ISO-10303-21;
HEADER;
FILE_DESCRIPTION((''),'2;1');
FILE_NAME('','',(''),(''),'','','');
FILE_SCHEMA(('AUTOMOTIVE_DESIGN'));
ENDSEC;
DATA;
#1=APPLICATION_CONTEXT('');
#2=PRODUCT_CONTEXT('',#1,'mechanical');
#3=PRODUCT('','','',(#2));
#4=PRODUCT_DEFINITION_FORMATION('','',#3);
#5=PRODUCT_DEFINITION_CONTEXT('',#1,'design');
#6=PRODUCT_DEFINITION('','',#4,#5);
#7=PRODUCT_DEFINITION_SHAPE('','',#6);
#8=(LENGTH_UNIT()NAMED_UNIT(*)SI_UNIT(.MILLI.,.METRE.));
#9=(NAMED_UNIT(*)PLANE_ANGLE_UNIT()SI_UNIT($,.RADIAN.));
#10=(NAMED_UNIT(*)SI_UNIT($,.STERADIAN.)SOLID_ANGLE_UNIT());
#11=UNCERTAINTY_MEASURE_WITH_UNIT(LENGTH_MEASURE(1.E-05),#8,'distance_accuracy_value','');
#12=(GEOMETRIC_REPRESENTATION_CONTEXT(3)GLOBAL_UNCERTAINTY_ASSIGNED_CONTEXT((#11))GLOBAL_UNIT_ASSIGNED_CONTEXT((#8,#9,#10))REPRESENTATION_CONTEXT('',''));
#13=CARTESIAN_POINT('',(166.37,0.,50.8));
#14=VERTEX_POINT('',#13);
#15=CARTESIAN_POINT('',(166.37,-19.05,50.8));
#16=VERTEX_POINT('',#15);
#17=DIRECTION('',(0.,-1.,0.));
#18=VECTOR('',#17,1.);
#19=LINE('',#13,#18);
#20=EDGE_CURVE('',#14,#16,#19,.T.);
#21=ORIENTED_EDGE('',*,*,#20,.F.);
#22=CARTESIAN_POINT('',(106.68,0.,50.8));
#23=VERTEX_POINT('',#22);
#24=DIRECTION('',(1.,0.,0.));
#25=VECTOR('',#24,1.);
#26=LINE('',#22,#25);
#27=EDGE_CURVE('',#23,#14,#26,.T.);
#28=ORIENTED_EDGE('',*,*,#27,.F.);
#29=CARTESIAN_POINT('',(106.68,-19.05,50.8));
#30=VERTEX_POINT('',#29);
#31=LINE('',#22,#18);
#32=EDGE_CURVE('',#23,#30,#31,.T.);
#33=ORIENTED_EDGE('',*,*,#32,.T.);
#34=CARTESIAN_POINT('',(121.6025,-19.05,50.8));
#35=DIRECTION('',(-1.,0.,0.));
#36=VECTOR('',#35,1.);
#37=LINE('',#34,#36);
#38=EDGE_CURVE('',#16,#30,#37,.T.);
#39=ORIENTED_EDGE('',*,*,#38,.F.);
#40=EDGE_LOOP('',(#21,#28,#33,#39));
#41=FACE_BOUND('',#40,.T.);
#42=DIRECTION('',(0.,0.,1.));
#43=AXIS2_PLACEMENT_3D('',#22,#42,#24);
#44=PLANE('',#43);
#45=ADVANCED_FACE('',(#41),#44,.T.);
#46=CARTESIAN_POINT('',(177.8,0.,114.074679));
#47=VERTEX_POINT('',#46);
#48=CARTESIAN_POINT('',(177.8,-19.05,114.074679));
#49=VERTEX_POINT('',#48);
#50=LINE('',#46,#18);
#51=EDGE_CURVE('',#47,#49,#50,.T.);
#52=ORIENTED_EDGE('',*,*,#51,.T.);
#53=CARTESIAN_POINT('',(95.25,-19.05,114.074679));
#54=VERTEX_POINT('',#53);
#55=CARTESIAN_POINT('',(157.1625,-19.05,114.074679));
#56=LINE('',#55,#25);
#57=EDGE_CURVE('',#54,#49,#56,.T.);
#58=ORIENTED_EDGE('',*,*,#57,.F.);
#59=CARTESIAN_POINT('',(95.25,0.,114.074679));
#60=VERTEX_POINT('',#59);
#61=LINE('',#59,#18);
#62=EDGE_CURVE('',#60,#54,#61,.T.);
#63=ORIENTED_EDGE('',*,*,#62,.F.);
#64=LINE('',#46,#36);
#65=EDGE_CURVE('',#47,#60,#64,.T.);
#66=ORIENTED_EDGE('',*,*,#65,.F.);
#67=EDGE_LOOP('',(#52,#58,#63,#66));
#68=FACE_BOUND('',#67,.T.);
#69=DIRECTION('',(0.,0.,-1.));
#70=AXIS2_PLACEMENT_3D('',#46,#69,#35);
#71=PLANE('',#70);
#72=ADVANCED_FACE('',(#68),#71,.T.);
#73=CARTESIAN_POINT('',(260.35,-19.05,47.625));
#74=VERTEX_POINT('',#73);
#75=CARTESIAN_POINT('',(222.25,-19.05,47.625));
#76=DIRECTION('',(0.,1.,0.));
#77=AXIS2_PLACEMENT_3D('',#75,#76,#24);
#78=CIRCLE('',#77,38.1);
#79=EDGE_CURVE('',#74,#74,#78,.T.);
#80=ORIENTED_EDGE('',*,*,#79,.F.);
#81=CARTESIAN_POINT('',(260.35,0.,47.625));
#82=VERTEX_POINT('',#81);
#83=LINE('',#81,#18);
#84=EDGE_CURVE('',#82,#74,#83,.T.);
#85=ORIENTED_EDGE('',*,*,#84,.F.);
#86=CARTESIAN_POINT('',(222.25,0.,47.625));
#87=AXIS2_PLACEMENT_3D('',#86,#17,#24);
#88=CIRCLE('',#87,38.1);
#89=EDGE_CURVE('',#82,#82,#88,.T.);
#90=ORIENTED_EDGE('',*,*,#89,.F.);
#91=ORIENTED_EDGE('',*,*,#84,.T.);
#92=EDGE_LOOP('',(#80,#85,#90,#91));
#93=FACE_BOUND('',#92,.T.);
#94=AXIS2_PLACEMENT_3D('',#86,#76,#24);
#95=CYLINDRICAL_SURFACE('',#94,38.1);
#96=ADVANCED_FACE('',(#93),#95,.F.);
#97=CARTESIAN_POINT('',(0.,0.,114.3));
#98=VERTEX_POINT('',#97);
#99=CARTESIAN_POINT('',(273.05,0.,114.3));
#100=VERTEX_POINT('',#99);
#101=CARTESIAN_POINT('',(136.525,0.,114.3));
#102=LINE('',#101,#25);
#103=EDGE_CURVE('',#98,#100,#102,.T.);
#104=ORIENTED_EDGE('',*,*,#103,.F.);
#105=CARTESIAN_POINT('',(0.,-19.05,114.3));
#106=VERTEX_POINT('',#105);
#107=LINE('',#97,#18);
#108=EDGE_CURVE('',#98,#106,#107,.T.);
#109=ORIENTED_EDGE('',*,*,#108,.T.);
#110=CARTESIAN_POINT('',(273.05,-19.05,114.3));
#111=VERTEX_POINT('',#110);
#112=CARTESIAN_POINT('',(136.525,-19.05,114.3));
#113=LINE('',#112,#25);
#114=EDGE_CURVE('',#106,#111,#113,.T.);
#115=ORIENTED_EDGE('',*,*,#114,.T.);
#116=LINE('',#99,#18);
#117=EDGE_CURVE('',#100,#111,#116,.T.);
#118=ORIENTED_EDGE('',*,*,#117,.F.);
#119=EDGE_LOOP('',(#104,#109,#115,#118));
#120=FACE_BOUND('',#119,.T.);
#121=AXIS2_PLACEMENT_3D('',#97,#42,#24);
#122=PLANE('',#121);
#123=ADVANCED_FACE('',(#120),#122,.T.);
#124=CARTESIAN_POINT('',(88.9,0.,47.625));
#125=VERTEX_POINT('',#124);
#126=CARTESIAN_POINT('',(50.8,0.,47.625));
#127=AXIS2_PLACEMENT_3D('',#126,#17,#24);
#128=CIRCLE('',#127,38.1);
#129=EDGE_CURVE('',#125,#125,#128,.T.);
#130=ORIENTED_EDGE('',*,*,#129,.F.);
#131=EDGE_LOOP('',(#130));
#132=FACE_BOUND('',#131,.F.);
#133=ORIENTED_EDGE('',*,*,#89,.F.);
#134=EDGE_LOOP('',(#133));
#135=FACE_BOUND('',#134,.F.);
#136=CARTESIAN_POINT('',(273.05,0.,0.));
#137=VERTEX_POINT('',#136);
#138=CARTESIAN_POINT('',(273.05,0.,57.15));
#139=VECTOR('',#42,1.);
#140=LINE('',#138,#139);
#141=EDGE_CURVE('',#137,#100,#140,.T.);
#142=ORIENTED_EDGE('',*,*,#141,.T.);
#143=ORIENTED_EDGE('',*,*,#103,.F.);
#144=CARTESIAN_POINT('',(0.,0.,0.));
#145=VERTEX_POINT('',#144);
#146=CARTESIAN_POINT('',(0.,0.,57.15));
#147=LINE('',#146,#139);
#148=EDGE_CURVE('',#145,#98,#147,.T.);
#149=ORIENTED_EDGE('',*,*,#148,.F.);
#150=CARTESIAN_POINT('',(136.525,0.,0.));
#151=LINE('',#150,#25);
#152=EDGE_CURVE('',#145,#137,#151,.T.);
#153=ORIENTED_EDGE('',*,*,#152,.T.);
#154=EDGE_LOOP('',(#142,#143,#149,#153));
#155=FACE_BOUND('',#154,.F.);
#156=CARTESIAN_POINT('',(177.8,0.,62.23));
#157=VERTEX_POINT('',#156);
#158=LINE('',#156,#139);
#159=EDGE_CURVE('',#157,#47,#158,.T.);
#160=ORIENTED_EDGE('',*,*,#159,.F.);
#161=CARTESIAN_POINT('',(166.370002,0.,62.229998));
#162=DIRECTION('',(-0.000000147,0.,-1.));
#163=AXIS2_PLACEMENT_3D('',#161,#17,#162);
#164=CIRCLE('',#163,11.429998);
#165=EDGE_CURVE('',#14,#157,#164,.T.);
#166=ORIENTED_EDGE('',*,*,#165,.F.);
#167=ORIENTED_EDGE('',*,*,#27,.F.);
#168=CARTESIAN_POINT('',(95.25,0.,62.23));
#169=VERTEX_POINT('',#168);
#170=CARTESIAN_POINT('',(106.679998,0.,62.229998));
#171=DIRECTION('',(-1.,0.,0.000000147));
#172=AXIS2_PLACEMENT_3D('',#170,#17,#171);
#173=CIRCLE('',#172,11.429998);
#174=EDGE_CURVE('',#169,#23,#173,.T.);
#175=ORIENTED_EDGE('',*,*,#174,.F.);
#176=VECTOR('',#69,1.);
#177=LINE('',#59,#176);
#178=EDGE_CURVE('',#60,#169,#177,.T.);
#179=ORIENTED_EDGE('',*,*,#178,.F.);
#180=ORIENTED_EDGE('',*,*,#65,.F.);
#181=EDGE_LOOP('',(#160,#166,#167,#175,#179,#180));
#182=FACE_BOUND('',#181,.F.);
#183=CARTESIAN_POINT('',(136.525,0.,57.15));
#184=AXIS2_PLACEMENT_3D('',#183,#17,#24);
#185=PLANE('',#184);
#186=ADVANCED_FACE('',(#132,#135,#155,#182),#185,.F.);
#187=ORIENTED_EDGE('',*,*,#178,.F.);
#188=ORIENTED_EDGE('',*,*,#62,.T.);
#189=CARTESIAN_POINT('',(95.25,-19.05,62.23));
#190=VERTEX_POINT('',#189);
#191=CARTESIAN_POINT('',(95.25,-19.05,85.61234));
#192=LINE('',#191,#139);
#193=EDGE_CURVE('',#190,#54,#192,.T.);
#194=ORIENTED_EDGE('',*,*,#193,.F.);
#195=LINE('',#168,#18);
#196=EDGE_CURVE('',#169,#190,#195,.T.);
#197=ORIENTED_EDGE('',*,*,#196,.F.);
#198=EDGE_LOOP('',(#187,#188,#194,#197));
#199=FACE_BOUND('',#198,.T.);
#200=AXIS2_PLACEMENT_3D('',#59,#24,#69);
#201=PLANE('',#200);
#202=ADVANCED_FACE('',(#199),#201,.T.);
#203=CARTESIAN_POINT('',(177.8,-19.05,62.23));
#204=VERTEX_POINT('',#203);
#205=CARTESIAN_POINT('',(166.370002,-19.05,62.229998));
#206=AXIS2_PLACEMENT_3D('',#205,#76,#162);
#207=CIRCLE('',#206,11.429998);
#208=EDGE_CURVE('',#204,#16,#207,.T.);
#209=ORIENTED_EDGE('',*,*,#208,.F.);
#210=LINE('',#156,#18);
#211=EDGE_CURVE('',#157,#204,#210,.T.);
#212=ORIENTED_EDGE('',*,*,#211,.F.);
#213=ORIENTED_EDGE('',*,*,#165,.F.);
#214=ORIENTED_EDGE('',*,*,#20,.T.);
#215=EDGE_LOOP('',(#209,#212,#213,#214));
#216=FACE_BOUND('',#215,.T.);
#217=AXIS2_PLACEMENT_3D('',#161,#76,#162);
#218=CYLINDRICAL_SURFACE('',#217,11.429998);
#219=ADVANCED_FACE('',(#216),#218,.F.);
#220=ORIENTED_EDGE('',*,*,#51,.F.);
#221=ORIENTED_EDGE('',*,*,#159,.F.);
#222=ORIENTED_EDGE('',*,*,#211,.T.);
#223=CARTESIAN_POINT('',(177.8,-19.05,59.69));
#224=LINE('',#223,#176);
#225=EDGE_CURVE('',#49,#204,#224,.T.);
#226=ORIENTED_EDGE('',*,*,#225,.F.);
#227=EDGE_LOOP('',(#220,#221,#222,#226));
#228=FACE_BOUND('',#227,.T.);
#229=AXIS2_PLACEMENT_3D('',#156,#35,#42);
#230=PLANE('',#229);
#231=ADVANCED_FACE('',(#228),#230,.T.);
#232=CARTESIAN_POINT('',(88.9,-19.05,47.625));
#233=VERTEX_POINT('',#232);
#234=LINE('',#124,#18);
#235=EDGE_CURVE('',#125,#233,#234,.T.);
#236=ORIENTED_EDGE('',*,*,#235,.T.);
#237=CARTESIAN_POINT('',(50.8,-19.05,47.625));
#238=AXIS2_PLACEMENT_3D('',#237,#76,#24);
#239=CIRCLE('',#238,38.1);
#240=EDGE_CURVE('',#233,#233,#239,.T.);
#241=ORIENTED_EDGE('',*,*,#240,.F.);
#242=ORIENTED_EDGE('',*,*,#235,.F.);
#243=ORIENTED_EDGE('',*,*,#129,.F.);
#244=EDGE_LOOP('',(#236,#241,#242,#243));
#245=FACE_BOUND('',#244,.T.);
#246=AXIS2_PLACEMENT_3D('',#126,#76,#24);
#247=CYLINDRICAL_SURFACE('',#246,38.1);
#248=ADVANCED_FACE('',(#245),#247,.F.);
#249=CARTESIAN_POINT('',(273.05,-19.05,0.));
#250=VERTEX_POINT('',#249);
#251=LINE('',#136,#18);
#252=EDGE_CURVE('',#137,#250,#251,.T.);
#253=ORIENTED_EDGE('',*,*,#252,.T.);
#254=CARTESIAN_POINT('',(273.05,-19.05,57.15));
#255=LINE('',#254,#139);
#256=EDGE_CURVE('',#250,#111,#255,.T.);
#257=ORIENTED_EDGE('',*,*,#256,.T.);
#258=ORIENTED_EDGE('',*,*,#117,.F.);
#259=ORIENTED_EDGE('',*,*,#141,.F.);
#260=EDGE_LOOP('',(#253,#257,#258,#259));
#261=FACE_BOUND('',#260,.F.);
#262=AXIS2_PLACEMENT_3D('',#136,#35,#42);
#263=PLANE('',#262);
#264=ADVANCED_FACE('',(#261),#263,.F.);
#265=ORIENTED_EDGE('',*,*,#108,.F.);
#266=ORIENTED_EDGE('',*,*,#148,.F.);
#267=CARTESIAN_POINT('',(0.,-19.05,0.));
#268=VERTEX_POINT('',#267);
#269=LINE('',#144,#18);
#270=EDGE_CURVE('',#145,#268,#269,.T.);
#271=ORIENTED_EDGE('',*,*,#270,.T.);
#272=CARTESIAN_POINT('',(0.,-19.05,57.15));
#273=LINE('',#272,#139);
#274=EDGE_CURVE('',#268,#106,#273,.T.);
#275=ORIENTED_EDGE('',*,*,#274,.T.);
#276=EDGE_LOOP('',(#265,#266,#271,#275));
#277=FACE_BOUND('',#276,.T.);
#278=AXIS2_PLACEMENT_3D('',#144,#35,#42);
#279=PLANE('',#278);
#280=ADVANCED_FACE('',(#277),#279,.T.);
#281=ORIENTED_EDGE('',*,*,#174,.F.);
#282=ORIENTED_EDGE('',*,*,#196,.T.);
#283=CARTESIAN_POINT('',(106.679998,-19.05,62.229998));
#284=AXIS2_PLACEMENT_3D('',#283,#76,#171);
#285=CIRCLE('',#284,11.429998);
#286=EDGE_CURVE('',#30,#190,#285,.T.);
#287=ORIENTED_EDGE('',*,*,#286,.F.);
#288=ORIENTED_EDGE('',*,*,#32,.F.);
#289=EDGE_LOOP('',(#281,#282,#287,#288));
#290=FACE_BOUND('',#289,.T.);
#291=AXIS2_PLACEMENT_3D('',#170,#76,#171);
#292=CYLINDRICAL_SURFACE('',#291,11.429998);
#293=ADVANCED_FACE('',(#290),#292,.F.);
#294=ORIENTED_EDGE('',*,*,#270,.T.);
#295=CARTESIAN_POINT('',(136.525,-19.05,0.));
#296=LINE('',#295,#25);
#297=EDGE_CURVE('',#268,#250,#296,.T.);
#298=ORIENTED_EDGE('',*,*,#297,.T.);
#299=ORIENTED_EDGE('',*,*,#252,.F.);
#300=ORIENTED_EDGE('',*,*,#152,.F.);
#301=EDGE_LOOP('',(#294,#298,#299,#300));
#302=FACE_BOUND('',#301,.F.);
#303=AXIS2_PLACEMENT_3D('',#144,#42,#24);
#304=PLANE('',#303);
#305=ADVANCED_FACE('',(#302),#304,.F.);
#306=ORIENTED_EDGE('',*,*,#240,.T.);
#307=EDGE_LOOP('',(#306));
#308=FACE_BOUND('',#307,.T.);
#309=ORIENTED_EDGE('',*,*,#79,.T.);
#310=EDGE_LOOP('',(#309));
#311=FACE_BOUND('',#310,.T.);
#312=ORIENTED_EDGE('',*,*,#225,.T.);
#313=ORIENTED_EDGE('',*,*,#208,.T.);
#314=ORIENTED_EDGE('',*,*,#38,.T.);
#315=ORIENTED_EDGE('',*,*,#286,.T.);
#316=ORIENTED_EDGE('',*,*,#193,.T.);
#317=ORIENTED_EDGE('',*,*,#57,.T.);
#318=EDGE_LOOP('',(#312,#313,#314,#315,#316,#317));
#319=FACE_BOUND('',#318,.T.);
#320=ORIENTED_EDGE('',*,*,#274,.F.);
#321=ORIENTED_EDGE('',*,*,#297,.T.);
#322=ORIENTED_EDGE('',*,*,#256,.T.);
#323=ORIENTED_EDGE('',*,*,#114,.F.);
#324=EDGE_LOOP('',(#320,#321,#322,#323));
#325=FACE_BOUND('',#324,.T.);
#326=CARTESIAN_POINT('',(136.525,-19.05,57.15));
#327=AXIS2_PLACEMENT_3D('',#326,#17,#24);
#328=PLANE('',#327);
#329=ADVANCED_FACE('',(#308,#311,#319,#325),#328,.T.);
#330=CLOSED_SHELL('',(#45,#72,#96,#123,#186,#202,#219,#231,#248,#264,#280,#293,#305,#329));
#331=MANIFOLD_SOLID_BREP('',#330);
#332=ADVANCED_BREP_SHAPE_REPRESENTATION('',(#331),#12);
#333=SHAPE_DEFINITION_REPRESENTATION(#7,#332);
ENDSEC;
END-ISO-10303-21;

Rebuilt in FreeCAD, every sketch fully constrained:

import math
import FreeCAD as App
import Part
import Sketcher

V = App.Vector
Q = App.Units.Quantity

doc = App.newDocument("Part")
params = doc.addObject("Spreadsheet::Sheet", "Params")
for row, (alias, value) in enumerate([
    ("sketch1_height", "4.5 in"),
    ("sketch1_width", "10.75 in"),
    ("pad1_length", "0.75 in"),
    ("sketch2_diameter", "3 in"),
    ("pocket1_length", "1 in"),
    ("sketch3_radius", "0.4499999 in"),
    ("sketch3_width", "3.25 in"),
    ("pocket2_length", "1 in"),
    ("sketch4_radius", "0.4499999 in"),
    ("sketch4_width", "3.25 in"),
    ("pocket3_length", "1 in"),
    ("sketch5_radius", "0.4499999 in"),
    ("sketch5_width", "3.25 in"),
    ("pocket4_length", "1 in"),
], start=1):
    params.set(f"A{row}", alias)
    params.set(f"B{row}", "=" + value)
    params.setAlias(f"B{row}", alias)

body = doc.addObject("PartDesign::Body", "Body")

# Sketch on XZ plane
sketch1 = doc.addObject("Sketcher::SketchObject", "Sketch")
body.addObject(sketch1)
sketch1.AttachmentSupport = (doc.XZ_Plane, [""])
sketch1.MapMode = "FlatFace"
sketch1.addGeometry(Part.LineSegment(V(0, 114.3, 0), V(0, 0, 0)), False)
sketch1.addGeometry(Part.LineSegment(V(0, 0, 0), V(273.05, 0, 0)), False)
sketch1.addGeometry(Part.LineSegment(V(273.05, 0, 0), V(273.05, 114.3, 0)), False)
sketch1.addGeometry(Part.LineSegment(V(273.05, 114.3, 0), V(0, 114.3, 0)), False)
sketch1.addConstraint(Sketcher.Constraint("Coincident", 0, 2, 1, 1))
sketch1.addConstraint(Sketcher.Constraint("Coincident", 1, 2, 2, 1))
sketch1.addConstraint(Sketcher.Constraint("Coincident", 2, 2, 3, 1))
sketch1.addConstraint(Sketcher.Constraint("Coincident", 3, 2, 0, 1))
sketch1.addConstraint(Sketcher.Constraint("Vertical", 0))
sketch1.addConstraint(Sketcher.Constraint("Horizontal", 1))
sketch1.addConstraint(Sketcher.Constraint("Vertical", 2))
sketch1.addConstraint(Sketcher.Constraint("Horizontal", 3))
sketch1.addConstraint(Sketcher.Constraint("Coincident", 0, 2, -1, 1))
sketch1.addConstraint(Sketcher.Constraint("DistanceY", 0, 2, 0, 1, Q("4.5 in")))
sketch1.addConstraint(Sketcher.Constraint("DistanceX", 1, 1, 1, 2, Q("10.75 in")))
sketch1.setExpression("Constraints[9]", "Params.sketch1_height")
sketch1.setExpression("Constraints[10]", "Params.sketch1_width")
pad1 = doc.addObject("PartDesign::Pad", "Pad")
body.addObject(pad1)
pad1.Profile = sketch1
pad1.setExpression("Length", "Params.pad1_length")

# Sketch on XZ plane
sketch2 = doc.addObject("Sketcher::SketchObject", "Sketch001")
body.addObject(sketch2)
sketch2.AttachmentSupport = (doc.XZ_Plane, [""])
sketch2.MapMode = "FlatFace"
sketch2.addGeometry(Part.Circle(V(50.8, 47.625, 0), V(0, 0, 1), 38.1), False)
sketch2.addGeometry(Part.Circle(V(222.25, 47.625, 0), V(0, 0, 1), 38.1), False)
sketch2.addConstraint(Sketcher.Constraint("Equal", 0, 1))
sketch2.addConstraint(Sketcher.Constraint("Horizontal", 0, 3, 1, 3))
sketch2.addConstraint(Sketcher.Constraint("Diameter", 0, Q("3 in")))
sketch2.addConstraint(Sketcher.Constraint("DistanceX", -1, 1, 0, 3, Q("2 in")))
sketch2.addConstraint(Sketcher.Constraint("DistanceX", -1, 1, 1, 3, Q("8.75 in")))
sketch2.addConstraint(Sketcher.Constraint("DistanceY", -1, 1, 0, 3, Q("1.875 in")))
sketch2.setExpression("Constraints[2]", "Params.sketch2_diameter")
pocket1 = doc.addObject("PartDesign::Pocket", "Pocket")
body.addObject(pocket1)
pocket1.Profile = sketch2
pocket1.setExpression("Length", "Params.pocket1_length")
pocket1.Reversed = True

# Sketch on XZ plane
sketch3 = doc.addObject("Sketcher::SketchObject", "Sketch002")
body.addObject(sketch3)
sketch3.AttachmentSupport = (doc.XZ_Plane, [""])
sketch3.MapMode = "FlatFace"
sketch3.addGeometry(Part.LineSegment(V(177.8, 114.074679, 0), V(95.25, 114.074679, 0)), False)
sketch3.addGeometry(Part.LineSegment(V(95.25, 114.074679, 0), V(95.25, 62.23, 0)), False)
sketch3.addGeometry(Part.ArcOfCircle(Part.Circle(V(106.679998, 62.229998, 0), V(0, 0, 1), 11.429998), math.radians(179.999992), math.radians(270.000008)), False)
sketch3.addGeometry(Part.LineSegment(V(106.68, 50.8, 0), V(166.37, 50.8, 0)), False)
sketch3.addGeometry(Part.ArcOfCircle(Part.Circle(V(166.370002, 62.229998, 0), V(0, 0, 1), 11.429998), math.radians(-90.000008), math.radians(0.000008)), False)
sketch3.addGeometry(Part.LineSegment(V(177.8, 62.23, 0), V(177.8, 114.074679, 0)), False)
sketch3.addConstraint(Sketcher.Constraint("Coincident", 0, 2, 1, 1))
sketch3.addConstraint(Sketcher.Constraint("Tangent", 1, 2, 2, 1))
sketch3.addConstraint(Sketcher.Constraint("Tangent", 2, 2, 3, 1))
sketch3.addConstraint(Sketcher.Constraint("Tangent", 3, 2, 4, 1))
sketch3.addConstraint(Sketcher.Constraint("Tangent", 4, 2, 5, 1))
sketch3.addConstraint(Sketcher.Constraint("Coincident", 5, 2, 0, 1))
sketch3.addConstraint(Sketcher.Constraint("Horizontal", 0))
sketch3.addConstraint(Sketcher.Constraint("Vertical", 1))
sketch3.addConstraint(Sketcher.Constraint("Horizontal", 3))
sketch3.addConstraint(Sketcher.Constraint("Vertical", 5))
sketch3.addConstraint(Sketcher.Constraint("Equal", 2, 4))
sketch3.addConstraint(Sketcher.Constraint("Radius", 2, Q("0.4499999 in")))
sketch3.addConstraint(Sketcher.Constraint("DistanceY", -1, 1, 2, 2, Q("2 in")))
sketch3.addConstraint(Sketcher.Constraint("DistanceX", -1, 1, 4, 2, Q("7 in")))
sketch3.addConstraint(Sketcher.Constraint("DistanceX", 0, 2, 0, 1, Q("3.25 in")))
sketch3.addConstraint(Sketcher.Constraint("DistanceY", 1, 2, 1, 1, Q("51.844679 mm")))
sketch3.setExpression("Constraints[11]", "Params.sketch3_radius")
sketch3.setExpression("Constraints[14]", "Params.sketch3_width")
pocket2 = doc.addObject("PartDesign::Pocket", "Pocket001")
body.addObject(pocket2)
pocket2.Profile = sketch3
pocket2.setExpression("Length", "Params.pocket2_length")

# Sketch on XZ plane
sketch4 = doc.addObject("Sketcher::SketchObject", "Sketch003")
body.addObject(sketch4)
sketch4.AttachmentSupport = (doc.XZ_Plane, [""])
sketch4.MapMode = "FlatFace"
sketch4.addGeometry(Part.LineSegment(V(177.8, 114.074679, 0), V(95.25, 114.074679, 0)), False)
sketch4.addGeometry(Part.LineSegment(V(95.25, 114.074679, 0), V(95.25, 62.23, 0)), False)
sketch4.addGeometry(Part.ArcOfCircle(Part.Circle(V(106.679998, 62.229998, 0), V(0, 0, 1), 11.429998), math.radians(179.999992), math.radians(270.000008)), False)
sketch4.addGeometry(Part.LineSegment(V(106.68, 50.8, 0), V(166.37, 50.8, 0)), False)
sketch4.addGeometry(Part.ArcOfCircle(Part.Circle(V(166.370002, 62.229998, 0), V(0, 0, 1), 11.429998), math.radians(-90.000008), math.radians(0.000008)), False)
sketch4.addGeometry(Part.LineSegment(V(177.8, 62.23, 0), V(177.8, 114.074679, 0)), False)
sketch4.addConstraint(Sketcher.Constraint("Coincident", 0, 2, 1, 1))
sketch4.addConstraint(Sketcher.Constraint("Tangent", 1, 2, 2, 1))
sketch4.addConstraint(Sketcher.Constraint("Tangent", 2, 2, 3, 1))
sketch4.addConstraint(Sketcher.Constraint("Tangent", 3, 2, 4, 1))
sketch4.addConstraint(Sketcher.Constraint("Tangent", 4, 2, 5, 1))
sketch4.addConstraint(Sketcher.Constraint("Coincident", 5, 2, 0, 1))
sketch4.addConstraint(Sketcher.Constraint("Horizontal", 0))
sketch4.addConstraint(Sketcher.Constraint("Vertical", 1))
sketch4.addConstraint(Sketcher.Constraint("Horizontal", 3))
sketch4.addConstraint(Sketcher.Constraint("Vertical", 5))
sketch4.addConstraint(Sketcher.Constraint("Equal", 2, 4))
sketch4.addConstraint(Sketcher.Constraint("Radius", 2, Q("0.4499999 in")))
sketch4.addConstraint(Sketcher.Constraint("DistanceY", -1, 1, 2, 2, Q("2 in")))
sketch4.addConstraint(Sketcher.Constraint("DistanceX", -1, 1, 4, 2, Q("7 in")))
sketch4.addConstraint(Sketcher.Constraint("DistanceX", 0, 2, 0, 1, Q("3.25 in")))
sketch4.addConstraint(Sketcher.Constraint("DistanceY", 1, 2, 1, 1, Q("51.844679 mm")))
sketch4.setExpression("Constraints[11]", "Params.sketch4_radius")
sketch4.setExpression("Constraints[14]", "Params.sketch4_width")
pocket3 = doc.addObject("PartDesign::Pocket", "Pocket002")
body.addObject(pocket3)
pocket3.Profile = sketch4
pocket3.setExpression("Length", "Params.pocket3_length")
pocket3.Reversed = True

# Sketch on XZ plane
sketch5 = doc.addObject("Sketcher::SketchObject", "Sketch004")
body.addObject(sketch5)
sketch5.AttachmentSupport = (doc.XZ_Plane, [""])
sketch5.MapMode = "FlatFace"
sketch5.addGeometry(Part.LineSegment(V(177.8, 114.074679, 0), V(95.25, 114.074679, 0)), False)
sketch5.addGeometry(Part.LineSegment(V(95.25, 114.074679, 0), V(95.25, 62.23, 0)), False)
sketch5.addGeometry(Part.ArcOfCircle(Part.Circle(V(106.679998, 62.229998, 0), V(0, 0, 1), 11.429998), math.radians(179.999992), math.radians(270.000008)), False)
sketch5.addGeometry(Part.LineSegment(V(106.68, 50.8, 0), V(166.37, 50.8, 0)), False)
sketch5.addGeometry(Part.ArcOfCircle(Part.Circle(V(166.370002, 62.229998, 0), V(0, 0, 1), 11.429998), math.radians(-90.000008), math.radians(0.000008)), False)
sketch5.addGeometry(Part.LineSegment(V(177.8, 62.23, 0), V(177.8, 114.074679, 0)), False)
sketch5.addConstraint(Sketcher.Constraint("Coincident", 0, 2, 1, 1))
sketch5.addConstraint(Sketcher.Constraint("Tangent", 1, 2, 2, 1))
sketch5.addConstraint(Sketcher.Constraint("Tangent", 2, 2, 3, 1))
sketch5.addConstraint(Sketcher.Constraint("Tangent", 3, 2, 4, 1))
sketch5.addConstraint(Sketcher.Constraint("Tangent", 4, 2, 5, 1))
sketch5.addConstraint(Sketcher.Constraint("Coincident", 5, 2, 0, 1))
sketch5.addConstraint(Sketcher.Constraint("Horizontal", 0))
sketch5.addConstraint(Sketcher.Constraint("Vertical", 1))
sketch5.addConstraint(Sketcher.Constraint("Horizontal", 3))
sketch5.addConstraint(Sketcher.Constraint("Vertical", 5))
sketch5.addConstraint(Sketcher.Constraint("Equal", 2, 4))
sketch5.addConstraint(Sketcher.Constraint("Radius", 2, Q("0.4499999 in")))
sketch5.addConstraint(Sketcher.Constraint("DistanceY", -1, 1, 2, 2, Q("2 in")))
sketch5.addConstraint(Sketcher.Constraint("DistanceX", -1, 1, 4, 2, Q("7 in")))
sketch5.addConstraint(Sketcher.Constraint("DistanceX", 0, 2, 0, 1, Q("3.25 in")))
sketch5.addConstraint(Sketcher.Constraint("DistanceY", 1, 2, 1, 1, Q("51.844679 mm")))
sketch5.setExpression("Constraints[11]", "Params.sketch5_radius")
sketch5.setExpression("Constraints[14]", "Params.sketch5_width")
pocket4 = doc.addObject("PartDesign::Pocket", "Pocket003")
body.addObject(pocket4)
pocket4.Profile = sketch5
pocket4.setExpression("Length", "Params.pocket4_length")

doc.recompute()
